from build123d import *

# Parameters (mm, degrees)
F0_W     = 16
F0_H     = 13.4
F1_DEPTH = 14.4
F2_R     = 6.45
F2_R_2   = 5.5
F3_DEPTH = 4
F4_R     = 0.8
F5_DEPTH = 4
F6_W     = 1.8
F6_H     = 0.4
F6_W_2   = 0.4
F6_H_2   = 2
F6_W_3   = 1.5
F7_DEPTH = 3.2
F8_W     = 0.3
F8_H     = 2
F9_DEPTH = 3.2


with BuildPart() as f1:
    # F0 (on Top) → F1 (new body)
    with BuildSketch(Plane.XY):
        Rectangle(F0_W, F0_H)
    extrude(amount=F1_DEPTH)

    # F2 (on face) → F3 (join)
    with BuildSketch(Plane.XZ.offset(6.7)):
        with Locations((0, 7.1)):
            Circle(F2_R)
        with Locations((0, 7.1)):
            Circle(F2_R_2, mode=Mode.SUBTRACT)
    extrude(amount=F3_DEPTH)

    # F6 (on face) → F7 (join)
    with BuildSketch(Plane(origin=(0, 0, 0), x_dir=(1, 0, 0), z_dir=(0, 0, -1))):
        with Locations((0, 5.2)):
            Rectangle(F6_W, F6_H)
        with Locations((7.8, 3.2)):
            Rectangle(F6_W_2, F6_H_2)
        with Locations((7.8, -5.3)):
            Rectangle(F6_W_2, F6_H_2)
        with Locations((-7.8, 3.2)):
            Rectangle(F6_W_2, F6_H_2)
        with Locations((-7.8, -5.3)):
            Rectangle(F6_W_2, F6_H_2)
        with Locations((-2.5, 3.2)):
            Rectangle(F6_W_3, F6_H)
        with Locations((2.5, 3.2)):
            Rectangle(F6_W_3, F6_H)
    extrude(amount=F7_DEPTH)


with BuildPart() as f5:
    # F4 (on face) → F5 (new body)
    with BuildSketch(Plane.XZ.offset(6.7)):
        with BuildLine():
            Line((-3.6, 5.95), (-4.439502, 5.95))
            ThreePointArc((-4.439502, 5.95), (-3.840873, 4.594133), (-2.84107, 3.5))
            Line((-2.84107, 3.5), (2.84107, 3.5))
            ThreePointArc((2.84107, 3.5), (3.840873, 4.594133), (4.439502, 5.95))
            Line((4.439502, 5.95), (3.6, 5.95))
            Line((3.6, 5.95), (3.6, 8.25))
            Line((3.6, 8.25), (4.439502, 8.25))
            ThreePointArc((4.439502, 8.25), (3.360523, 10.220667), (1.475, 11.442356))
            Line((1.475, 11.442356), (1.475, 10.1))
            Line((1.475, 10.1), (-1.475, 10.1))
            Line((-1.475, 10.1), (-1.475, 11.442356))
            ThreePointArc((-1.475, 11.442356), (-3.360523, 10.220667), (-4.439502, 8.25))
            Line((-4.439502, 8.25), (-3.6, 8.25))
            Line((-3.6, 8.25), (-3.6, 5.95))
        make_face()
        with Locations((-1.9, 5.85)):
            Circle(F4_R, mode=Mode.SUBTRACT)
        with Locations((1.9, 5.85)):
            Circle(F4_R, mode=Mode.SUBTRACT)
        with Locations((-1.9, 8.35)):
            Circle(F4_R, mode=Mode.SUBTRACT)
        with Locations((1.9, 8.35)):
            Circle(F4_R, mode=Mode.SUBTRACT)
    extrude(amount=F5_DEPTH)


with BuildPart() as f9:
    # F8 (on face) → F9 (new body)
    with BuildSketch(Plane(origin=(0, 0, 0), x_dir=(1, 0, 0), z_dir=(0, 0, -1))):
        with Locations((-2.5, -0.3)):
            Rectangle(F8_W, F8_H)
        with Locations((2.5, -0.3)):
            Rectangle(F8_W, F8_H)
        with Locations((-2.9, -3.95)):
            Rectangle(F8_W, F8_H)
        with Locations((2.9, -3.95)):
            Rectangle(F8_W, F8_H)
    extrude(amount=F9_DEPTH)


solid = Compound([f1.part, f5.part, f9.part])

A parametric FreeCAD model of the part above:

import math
import FreeCAD as App
import Part
import Sketcher
from FreeCAD import Vector
Q = App.Units.Quantity


def add_polygon(sketch, points):
    """Adds a closed chain of lines whose ends are joined by coincident constraints."""
    first, n = sketch.GeometryCount, len(points)
    for a, b in zip(points, points[1:] + points[:1]):
        sketch.addGeometry(Part.LineSegment(App.Vector(*a, 0), App.Vector(*b, 0)), False)
    for i in range(n):
        sketch.addConstraint(Sketcher.Constraint("Coincident", first + i, 2, first + (i + 1) % n, 1))

doc = App.newDocument("Part")
body = doc.addObject("PartDesign::Body", "Body")

# Sketch on XY plane
sketch1 = doc.addObject("Sketcher::SketchObject", "Sketch")
body.addObject(sketch1)
sketch1.AttachmentSupport = (doc.XY_Plane, [""])
sketch1.MapMode = "FlatFace"
add_polygon(sketch1, [(-8, 7), (-8, -7), (8, -7), (8, 7)])  # lines 0-3
sketch1.addConstraint(Sketcher.Constraint("Vertical", 0))
sketch1.addConstraint(Sketcher.Constraint("Horizontal", 1))
sketch1.addConstraint(Sketcher.Constraint("Vertical", 2))
sketch1.addConstraint(Sketcher.Constraint("Horizontal", 3))
sketch1.addConstraint(Sketcher.Constraint("Symmetric", 0, 2, 2, 2, -1, 1))
sketch1.addConstraint(Sketcher.Constraint("DistanceX", 1, 1, 1, 2, Q("16 mm")))
sketch1.addConstraint(Sketcher.Constraint("DistanceY", 0, 2, 0, 1, Q("13.4 mm")))
pad1 = doc.addObject("PartDesign::Pad", "Pad")
body.addObject(pad1)
pad1.Profile = sketch1
pad1.Length = 14.4

# Sketch on XZ plane
sketch2 = doc.addObject("Sketcher::SketchObject", "Sketch001")
body.addObject(sketch2)
sketch2.AttachmentSupport = (doc.XZ_Plane, [""])
sketch2.MapMode = "FlatFace"
sketch2.AttachmentOffset = App.Placement(Vector(0, 0, 6.7), App.Rotation())
sketch2.addGeometry(Part.Circle(Vector(0, 7, 0), Vector(0, 0, 1), 6), False)
sketch2.addGeometry(Part.Circle(Vector(0, 7, 0), Vector(0, 0, 1), 6), False)
sketch2.addConstraint(Sketcher.Constraint("Coincident", 1, 3, 0, 3))
sketch2.addConstraint(Sketcher.Constraint("PointOnObject", 0, 3, -2))
sketch2.addConstraint(Sketcher.Constraint("Diameter", 1, Q("11 mm")))
sketch2.addConstraint(Sketcher.Constraint("Diameter", 0, Q("12.9 mm")))
sketch2.addConstraint(Sketcher.Constraint("DistanceY", -1, 1, 0, 3, Q("7.1 mm")))
pad2 = doc.addObject("PartDesign::Pad", "Pad001")
body.addObject(pad2)
pad2.Profile = sketch2
pad2.Length = 4

# Sketch on XY plane
sketch3 = doc.addObject("Sketcher::SketchObject", "Sketch002")
body.addObject(sketch3)
sketch3.AttachmentSupport = (doc.XY_Plane, [""])
sketch3.MapMode = "FlatFace"
add_polygon(sketch3, [(-0.9, -5.4), (-0.9, -5), (0.9, -5), (0.9, -5.4)])  # lines 0-3
add_polygon(sketch3, [(7.6, -4.2), (7.6, -2.2), (8, -2.2), (8, -4.2)])  # lines 4-7
add_polygon(sketch3, [(7.6, 4.3), (7.6, 6.3), (8, 6.3), (8, 4.3)])  # lines 8-11
add_polygon(sketch3, [(-8, -4.2), (-8, -2.2), (-7.6, -2.2), (-7.6, -4.2)])  # lines 12-15
add_polygon(sketch3, [(-8, 4.3), (-8, 6.3), (-7.6, 6.3), (-7.6, 4.3)])  # lines 16-19
add_polygon(sketch3, [(-3.25, -3.4), (-3.25, -3), (-1.75, -3), (-1.75, -3.4)])  # lines 20-23
add_polygon(sketch3, [(1.75, -3.4), (1.75, -3), (3.25, -3), (3.25, -3.4)])  # lines 24-27
sketch3.addConstraint(Sketcher.Constraint("Vertical", 0))
sketch3.addConstraint(Sketcher.Constraint("Horizontal", 1))
sketch3.addConstraint(Sketcher.Constraint("Vertical", 2))
sketch3.addConstraint(Sketcher.Constraint("Horizontal", 3))
sketch3.addConstraint(Sketcher.Constraint("Vertical", 4))
sketch3.addConstraint(Sketcher.Constraint("Horizontal", 5))
sketch3.addConstraint(Sketcher.Constraint("Vertical", 6))
sketch3.addConstraint(Sketcher.Constraint("Horizontal", 7))
sketch3.addConstraint(Sketcher.Constraint("Vertical", 8))
sketch3.addConstraint(Sketcher.Constraint("Horizontal", 9))
sketch3.addConstraint(Sketcher.Constraint("Vertical", 10))
sketch3.addConstraint(Sketcher.Constraint("Horizontal", 11))
sketch3.addConstraint(Sketcher.Constraint("Vertical", 12))
sketch3.addConstraint(Sketcher.Constraint("Horizontal", 13))
sketch3.addConstraint(Sketcher.Constraint("Vertical", 14))
sketch3.addConstraint(Sketcher.Constraint("Horizontal", 15))
sketch3.addConstraint(Sketcher.Constraint("Vertical", 16))
sketch3.addConstraint(Sketcher.Constraint("Horizontal", 17))
sketch3.addConstraint(Sketcher.Constraint("Vertical", 18))
sketch3.addConstraint(Sketcher.Constraint("Horizontal", 19))
sketch3.addConstraint(Sketcher.Constraint("Vertical", 20))
sketch3.addConstraint(Sketcher.Constraint("Horizontal", 21))
sketch3.addConstraint(Sketcher.Constraint("Vertical", 22))
sketch3.addConstraint(Sketcher.Constraint("Horizontal", 23))
sketch3.addConstraint(Sketcher.Constraint("Vertical", 24))
sketch3.addConstraint(Sketcher.Constraint("Horizontal", 25))
sketch3.addConstraint(Sketcher.Constraint("Vertical", 26))
sketch3.addConstraint(Sketcher.Constraint("Horizontal", 27))
sketch3.addConstraint(Sketcher.Constraint("Symmetric", 5, 2, 12, 2, -2))
sketch3.addConstraint(Sketcher.Constraint("Symmetric", 7, 2, 14, 2, -2))
sketch3.addConstraint(Sketcher.Constraint("Symmetric", 9, 2, 16, 2, -2))
sketch3.addConstraint(Sketcher.Constraint("Symmetric", 11, 2, 18, 2, -2))
sketch3.addConstraint(Sketcher.Constraint("Symmetric", 21, 2, 24, 2, -2))
sketch3.addConstraint(Sketcher.Constraint("Symmetric", 23, 2, 26, 2, -2))
sketch3.addConstraint(Sketcher.Constraint("Vertical", 7, 2, 8, 2))
sketch3.addConstraint(Sketcher.Constraint("Vertical", 6, 2, 9, 2))
sketch3.addConstraint(Sketcher.Constraint("Equal", 19, 0))
sketch3.addConstraint(Sketcher.Constraint("Equal", 6, 8))
sketch3.addConstraint(Sketcher.Constraint("Equal", 2, 20))
sketch3.addConstraint(Sketcher.Constraint("DistanceY", 4, 1, 4, 2, Q("2 mm")))
sketch3.addConstraint(Sketcher.Constraint("DistanceX", 1, 1, 1, 2, Q("1.8 mm")))
sketch3.addConstraint(Sketcher.Constraint("DistanceX", 5, 1, 5, 2, Q("0.4 mm")))
sketch3.addConstraint(Sketcher.Constraint("DistanceX", 21, 1, 21, 2, Q("1.5 mm")))
sketch3.addConstraint(Sketcher.Constraint("DistanceY", 0, 2, -1, 1, Q("5 mm")))
sketch3.addConstraint(Sketcher.Constraint("DistanceX", -1, 1, 5, 2, Q("8 mm")))
sketch3.addConstraint(Sketcher.Constraint("DistanceY", 20, 2, -1, 1, Q("3 mm")))
sketch3.addConstraint(Sketcher.Constraint("DistanceX", 0, 2, -1, 1, Q("0.9 mm")))
sketch3.addConstraint(Sketcher.Constraint("DistanceY", 4, 2, -1, 1, Q("2.2 mm")))
sketch3.addConstraint(Sketcher.Constraint("DistanceY", -1, 1, 8, 2, Q("6.3 mm")))
sketch3.addConstraint(Sketcher.Constraint("DistanceX", 21, 2, 24, 2, Q("3.5 mm")))
pad3 = doc.addObject("PartDesign::Pad", "Pad002")
body.addObject(pad3)
pad3.Profile = sketch3
pad3.Length = 3.2
pad3.Reversed = True
body2 = doc.addObject("PartDesign::Body", "Body001")

# Sketch on XZ plane
sketch4 = doc.addObject("Sketcher::SketchObject", "Sketch003")
body2.addObject(sketch4)
sketch4.AttachmentSupport = (doc.getObject("XZ_Plane001"), [""])
sketch4.MapMode = "FlatFace"
sketch4.AttachmentOffset = App.Placement(Vector(0, 0, 6.7), App.Rotation())
sketch4.addGeometry(Part.LineSegment(Vector(-3.6, 5.95, 0), Vector(-4.439502, 5.95, 0)), False)
sketch4.addGeometry(Part.ArcOfCircle(Part.Circle(Vector(0.000006, 7.100004, 0), Vector(0, 0, 1), 4.586038), math.radians(-165.477393), math.radians(-128.280042)), False)
sketch4.addGeometry(Part.LineSegment(Vector(-2.84107, 3.5, 0), Vector(2.84107, 3.5, 0)), False)
sketch4.addGeometry(Part.ArcOfCircle(Part.Circle(Vector(-0.000006, 7.100004, 0), Vector(0, 0, 1), 4.586038), math.radians(-51.719958), math.radians(-14.522607)), False)
sketch4.addGeometry(Part.LineSegment(Vector(4.439502, 5.95, 0), Vector(3.6, 5.95, 0)), False)
sketch4.addGeometry(Part.LineSegment(Vector(3.6, 5.95, 0), Vector(3.6, 8.25, 0)), False)
sketch4.addGeometry(Part.LineSegment(Vector(3.6, 8.25, 0), Vector(4.439502, 8.25, 0)), False)
sketch4.addGeometry(Part.ArcOfCircle(Part.Circle(Vector(-0.000002, 7.099999, 0), Vector(0, 0, 1), 4.586032), math.radians(14.522586), math.radians(71.238525)), False)
sketch4.addGeometry(Part.LineSegment(Vector(1.475, 11.442356, 0), Vector(1.475, 10.1, 0)), False)
sketch4.addGeometry(Part.LineSegment(Vector(1.475, 10.1, 0), Vector(-1.475, 10.1, 0)), False)
sketch4.addGeometry(Part.LineSegment(Vector(-1.475, 10.1, 0), Vector(-1.475, 11.442356, 0)), False)
sketch4.addGeometry(Part.ArcOfCircle(Part.Circle(Vector(0.000002, 7.099999, 0), Vector(0, 0, 1), 4.586032), math.radians(108.761475), math.radians(165.477414)), False)
sketch4.addGeometry(Part.LineSegment(Vector(-4.439502, 8.25, 0), Vector(-3.6, 8.25, 0)), False)
sketch4.addGeometry(Part.LineSegment(Vector(-3.6, 8.25, 0), Vector(-3.6, 5.95, 0)), False)
sketch4.addGeometry(Part.Circle(Vector(-1.9, 5.85, 0), Vector(0, 0, 1), 0.8), False)
sketch4.addGeometry(Part.Circle(Vector(1.9, 5.85, 0), Vector(0, 0, 1), 0.8), False)
sketch4.addGeometry(Part.Circle(Vector(-1.9, 8.35, 0), Vector(0, 0, 1), 0.8), False)
sketch4.addGeometry(Part.Circle(Vector(1.9, 8.35, 0), Vector(0, 0, 1), 0.8), False)
sketch4.addConstraint(Sketcher.Constraint("Coincident", 0, 2, 1, 1))
sketch4.addConstraint(Sketcher.Constraint("Coincident", 1, 2, 2, 1))
sketch4.addConstraint(Sketcher.Constraint("Coincident", 2, 2, 3, 1))
sketch4.addConstraint(Sketcher.Constraint("Coincident", 3, 2, 4, 1))
sketch4.addConstraint(Sketcher.Constraint("Coincident", 4, 2, 5, 1))
sketch4.addConstraint(Sketcher.Constraint("Coincident", 5, 2, 6, 1))
sketch4.addConstraint(Sketcher.Constraint("Coincident", 6, 2, 7, 1))
sketch4.addConstraint(Sketcher.Constraint("Coincident", 7, 2, 8, 1))
sketch4.addConstraint(Sketcher.Constraint("Coincident", 8, 2, 9, 1))
sketch4.addConstraint(Sketcher.Constraint("Coincident", 9, 2, 10, 1))
sketch4.addConstraint(Sketcher.Constraint("Coincident", 10, 2, 11, 1))
sketch4.addConstraint(Sketcher.Constraint("Coincident", 11, 2, 12, 1))
sketch4.addConstraint(Sketcher.Constraint("Coincident", 12, 2, 13, 1))
sketch4.addConstraint(Sketcher.Constraint("Coincident", 13, 2, 0, 1))
sketch4.addConstraint(Sketcher.Constraint("Horizontal", 0))
sketch4.addConstraint(Sketcher.Constraint("Horizontal", 2))
sketch4.addConstraint(Sketcher.Constraint("Horizontal", 4))
sketch4.addConstraint(Sketcher.Constraint("Vertical", 5))
sketch4.addConstraint(Sketcher.Constraint("Horizontal", 6))
sketch4.addConstraint(Sketcher.Constraint("Vertical", 8))
sketch4.addConstraint(Sketcher.Constraint("Horizontal", 9))
sketch4.addConstraint(Sketcher.Constraint("Vertical", 10))
sketch4.addConstraint(Sketcher.Constraint("Horizontal", 12))
sketch4.addConstraint(Sketcher.Constraint("Vertical", 13))
sketch4.addConstraint(Sketcher.Constraint("Coincident", 7, 3, 1, 3))
sketch4.addConstraint(Sketcher.Constraint("Coincident", 11, 3, 1, 3))
sketch4.addConstraint(Sketcher.Constraint("PointOnObject", 7, 3, -2))
sketch4.addConstraint(Sketcher.Constraint("Diameter", 14, Q("1.6 mm")))
sketch4.addConstraint(Sketcher.Constraint("Diameter", 15, Q("1.6 mm")))
sketch4.addConstraint(Sketcher.Constraint("Diameter", 16, Q("1.6 mm")))
sketch4.addConstraint(Sketcher.Constraint("Diameter", 17, Q("1.6 mm")))
sketch4.addConstraint(Sketcher.Constraint("DistanceY", 5, 1, 5, 2, Q("2.3 mm")))
sketch4.addConstraint(Sketcher.Constraint("DistanceY", 13, 2, 13, 1, Q("2.3 mm")))
sketch4.addConstraint(Sketcher.Constraint("DistanceX", 9, 2, 9, 1, Q("2.95 mm")))
sketch4.addConstraint(Sketcher.Constraint("DistanceY", -1, 1, 7, 3, Q("7.099999 mm")))
sketch4.addConstraint(Sketcher.Constraint("DistanceX", 14, 3, -1, 1, Q("1.9 mm")))
sketch4.addConstraint(Sketcher.Constraint("DistanceX", -1, 1, 15, 3, Q("1.9 mm")))
sketch4.addConstraint(Sketcher.Constraint("DistanceX", 16, 3, -1, 1, Q("1.9 mm")))
sketch4.addConstraint(Sketcher.Constraint("DistanceX", -1, 1, 17, 3, Q("1.9 mm")))
sketch4.addConstraint(Sketcher.Constraint("DistanceY", -1, 1, 1, 2, Q("3.5 mm")))
sketch4.addConstraint(Sketcher.Constraint("DistanceX", -1, 1, 4, 2, Q("3.6 mm")))
sketch4.addConstraint(Sketcher.Constraint("DistanceY", -1, 1, 8, 2, Q("10.1 mm")))
sketch4.addConstraint(Sketcher.Constraint("DistanceX", 12, 2, -1, 1, Q("3.6 mm")))
sketch4.addConstraint(Sketcher.Constraint("DistanceY", 14, 3, 16, 3, Q("2.5 mm")))
sketch4.addConstraint(Sketcher.Constraint("DistanceY", 15, 3, 17, 3, Q("2.5 mm")))
sketch4.addConstraint(Sketcher.Constraint("DistanceY", 14, 3, 0, 2, Q("0.1 mm")))
sketch4.addConstraint(Sketcher.Constraint("DistanceY", 15, 3, 3, 2, Q("0.1 mm")))
sketch4.addConstraint(Sketcher.Constraint("DistanceY", -1, 1, 14, 3, Q("5.85 mm")))
sketch4.addConstraint(Sketcher.Constraint("DistanceY", -1, 1, 15, 3, Q("5.85 mm")))
sketch4.addConstraint(Sketcher.Constraint("DistanceX", 0, 2, 0, 1, Q("0.839502 mm")))
sketch4.addConstraint(Sketcher.Constraint("DistanceX", 4, 2, 4, 1, Q("0.839502 mm")))
sketch4.addConstraint(Sketcher.Constraint("DistanceX", 6, 1, 6, 2, Q("0.839502 mm")))
sketch4.addConstraint(Sketcher.Constraint("DistanceX", 12, 1, 12, 2, Q("0.839502 mm")))
sketch4.addConstraint(Sketcher.Constraint("DistanceX", -1, 1, 7, 2, Q("1.475 mm")))
sketch4.addConstraint(Sketcher.Constraint("Radius", 3, Q("4.586038 mm")))
sketch4.addConstraint(Sketcher.Constraint("DistanceX", 2, 1, 2, 2, Q("5.68214 mm")))
pad4 = doc.addObject("PartDesign::Pad", "Pad003")
body2.addObject(pad4)
pad4.Profile = sketch4
pad4.Length = 4
body3 = doc.addObject("PartDesign::Body", "Body002")
body3.AllowCompound = True

# Sketch on XY plane
sketch5 = doc.addObject("Sketcher::SketchObject", "Sketch004")
body3.addObject(sketch5)
sketch5.AttachmentSupport = (doc.getObject("XY_Plane002"), [""])
sketch5.MapMode = "FlatFace"
add_polygon(sketch5, [(-2.65, -0.7), (-2.65, 1.3), (-2.35, 1.3), (-2.35, -0.7)])  # lines 0-3
add_polygon(sketch5, [(2.35, -0.7), (2.35, 1.3), (2.65, 1.3), (2.65, -0.7)])  # lines 4-7
add_polygon(sketch5, [(-3.05, 2.95), (-3.05, 4.95), (-2.75, 4.95), (-2.75, 2.95)])  # lines 8-11
add_polygon(sketch5, [(2.75, 2.95), (2.75, 4.95), (3.05, 4.95), (3.05, 2.95)])  # lines 12-15
sketch5.addConstraint(Sketcher.Constraint("Vertical", 0))
sketch5.addConstraint(Sketcher.Constraint("Horizontal", 1))
sketch5.addConstraint(Sketcher.Constraint("Vertical", 2))
sketch5.addConstraint(Sketcher.Constraint("Horizontal", 3))
sketch5.addConstraint(Sketcher.Constraint("Vertical", 4))
sketch5.addConstraint(Sketcher.Constraint("Horizontal", 5))
sketch5.addConstraint(Sketcher.Constraint("Vertical", 6))
sketch5.addConstraint(Sketcher.Constraint("Horizontal", 7))
sketch5.addConstraint(Sketcher.Constraint("Vertical", 8))
sketch5.addConstraint(Sketcher.Constraint("Horizontal", 9))
sketch5.addConstraint(Sketcher.Constraint("Vertical", 10))
sketch5.addConstraint(Sketcher.Constraint("Horizontal", 11))
sketch5.addConstraint(Sketcher.Constraint("Vertical", 12))
sketch5.addConstraint(Sketcher.Constraint("Horizontal", 13))
sketch5.addConstraint(Sketcher.Constraint("Vertical", 14))
sketch5.addConstraint(Sketcher.Constraint("Horizontal", 15))
sketch5.addConstraint(Sketcher.Constraint("Symmetric", 1, 2, 4, 2, -2))
sketch5.addConstraint(Sketcher.Constraint("Symmetric", 3, 2, 6, 2, -2))
sketch5.addConstraint(Sketcher.Constraint("Symmetric", 9, 2, 12, 2, -2))
sketch5.addConstraint(Sketcher.Constraint("Symmetric", 11, 2, 14, 2, -2))
sketch5.addConstraint(Sketcher.Constraint("Equal", 7, 9))
sketch5.addConstraint(Sketcher.Constraint("Equal", 6, 8))
sketch5.addConstraint(Sketcher.Constraint("DistanceY", 0, 1, 0, 2, Q("2 mm")))
sketch5.addConstraint(Sketcher.Constraint("DistanceX", 1, 1, 1, 2, Q("0.3 mm")))
sketch5.addConstraint(Sketcher.Constraint("DistanceX", 0, 2, 4, 2, Q("5 mm")))
sketch5.addConstraint(Sketcher.Constraint("DistanceY", -1, 1, 0, 2, Q("1.3 mm")))
sketch5.addConstraint(Sketcher.Constraint("DistanceX", 8, 2, 0, 2, Q("0.4 mm")))
sketch5.addConstraint(Sketcher.Constraint("DistanceY", -1, 1, 8, 2, Q("4.95 mm")))
pad5 = doc.addObject("PartDesign::Pad", "Pad004")
body3.addObject(pad5)
pad5.Profile = sketch5
pad5.Length = 3.2
pad5.Reversed = True

doc.recompute()
